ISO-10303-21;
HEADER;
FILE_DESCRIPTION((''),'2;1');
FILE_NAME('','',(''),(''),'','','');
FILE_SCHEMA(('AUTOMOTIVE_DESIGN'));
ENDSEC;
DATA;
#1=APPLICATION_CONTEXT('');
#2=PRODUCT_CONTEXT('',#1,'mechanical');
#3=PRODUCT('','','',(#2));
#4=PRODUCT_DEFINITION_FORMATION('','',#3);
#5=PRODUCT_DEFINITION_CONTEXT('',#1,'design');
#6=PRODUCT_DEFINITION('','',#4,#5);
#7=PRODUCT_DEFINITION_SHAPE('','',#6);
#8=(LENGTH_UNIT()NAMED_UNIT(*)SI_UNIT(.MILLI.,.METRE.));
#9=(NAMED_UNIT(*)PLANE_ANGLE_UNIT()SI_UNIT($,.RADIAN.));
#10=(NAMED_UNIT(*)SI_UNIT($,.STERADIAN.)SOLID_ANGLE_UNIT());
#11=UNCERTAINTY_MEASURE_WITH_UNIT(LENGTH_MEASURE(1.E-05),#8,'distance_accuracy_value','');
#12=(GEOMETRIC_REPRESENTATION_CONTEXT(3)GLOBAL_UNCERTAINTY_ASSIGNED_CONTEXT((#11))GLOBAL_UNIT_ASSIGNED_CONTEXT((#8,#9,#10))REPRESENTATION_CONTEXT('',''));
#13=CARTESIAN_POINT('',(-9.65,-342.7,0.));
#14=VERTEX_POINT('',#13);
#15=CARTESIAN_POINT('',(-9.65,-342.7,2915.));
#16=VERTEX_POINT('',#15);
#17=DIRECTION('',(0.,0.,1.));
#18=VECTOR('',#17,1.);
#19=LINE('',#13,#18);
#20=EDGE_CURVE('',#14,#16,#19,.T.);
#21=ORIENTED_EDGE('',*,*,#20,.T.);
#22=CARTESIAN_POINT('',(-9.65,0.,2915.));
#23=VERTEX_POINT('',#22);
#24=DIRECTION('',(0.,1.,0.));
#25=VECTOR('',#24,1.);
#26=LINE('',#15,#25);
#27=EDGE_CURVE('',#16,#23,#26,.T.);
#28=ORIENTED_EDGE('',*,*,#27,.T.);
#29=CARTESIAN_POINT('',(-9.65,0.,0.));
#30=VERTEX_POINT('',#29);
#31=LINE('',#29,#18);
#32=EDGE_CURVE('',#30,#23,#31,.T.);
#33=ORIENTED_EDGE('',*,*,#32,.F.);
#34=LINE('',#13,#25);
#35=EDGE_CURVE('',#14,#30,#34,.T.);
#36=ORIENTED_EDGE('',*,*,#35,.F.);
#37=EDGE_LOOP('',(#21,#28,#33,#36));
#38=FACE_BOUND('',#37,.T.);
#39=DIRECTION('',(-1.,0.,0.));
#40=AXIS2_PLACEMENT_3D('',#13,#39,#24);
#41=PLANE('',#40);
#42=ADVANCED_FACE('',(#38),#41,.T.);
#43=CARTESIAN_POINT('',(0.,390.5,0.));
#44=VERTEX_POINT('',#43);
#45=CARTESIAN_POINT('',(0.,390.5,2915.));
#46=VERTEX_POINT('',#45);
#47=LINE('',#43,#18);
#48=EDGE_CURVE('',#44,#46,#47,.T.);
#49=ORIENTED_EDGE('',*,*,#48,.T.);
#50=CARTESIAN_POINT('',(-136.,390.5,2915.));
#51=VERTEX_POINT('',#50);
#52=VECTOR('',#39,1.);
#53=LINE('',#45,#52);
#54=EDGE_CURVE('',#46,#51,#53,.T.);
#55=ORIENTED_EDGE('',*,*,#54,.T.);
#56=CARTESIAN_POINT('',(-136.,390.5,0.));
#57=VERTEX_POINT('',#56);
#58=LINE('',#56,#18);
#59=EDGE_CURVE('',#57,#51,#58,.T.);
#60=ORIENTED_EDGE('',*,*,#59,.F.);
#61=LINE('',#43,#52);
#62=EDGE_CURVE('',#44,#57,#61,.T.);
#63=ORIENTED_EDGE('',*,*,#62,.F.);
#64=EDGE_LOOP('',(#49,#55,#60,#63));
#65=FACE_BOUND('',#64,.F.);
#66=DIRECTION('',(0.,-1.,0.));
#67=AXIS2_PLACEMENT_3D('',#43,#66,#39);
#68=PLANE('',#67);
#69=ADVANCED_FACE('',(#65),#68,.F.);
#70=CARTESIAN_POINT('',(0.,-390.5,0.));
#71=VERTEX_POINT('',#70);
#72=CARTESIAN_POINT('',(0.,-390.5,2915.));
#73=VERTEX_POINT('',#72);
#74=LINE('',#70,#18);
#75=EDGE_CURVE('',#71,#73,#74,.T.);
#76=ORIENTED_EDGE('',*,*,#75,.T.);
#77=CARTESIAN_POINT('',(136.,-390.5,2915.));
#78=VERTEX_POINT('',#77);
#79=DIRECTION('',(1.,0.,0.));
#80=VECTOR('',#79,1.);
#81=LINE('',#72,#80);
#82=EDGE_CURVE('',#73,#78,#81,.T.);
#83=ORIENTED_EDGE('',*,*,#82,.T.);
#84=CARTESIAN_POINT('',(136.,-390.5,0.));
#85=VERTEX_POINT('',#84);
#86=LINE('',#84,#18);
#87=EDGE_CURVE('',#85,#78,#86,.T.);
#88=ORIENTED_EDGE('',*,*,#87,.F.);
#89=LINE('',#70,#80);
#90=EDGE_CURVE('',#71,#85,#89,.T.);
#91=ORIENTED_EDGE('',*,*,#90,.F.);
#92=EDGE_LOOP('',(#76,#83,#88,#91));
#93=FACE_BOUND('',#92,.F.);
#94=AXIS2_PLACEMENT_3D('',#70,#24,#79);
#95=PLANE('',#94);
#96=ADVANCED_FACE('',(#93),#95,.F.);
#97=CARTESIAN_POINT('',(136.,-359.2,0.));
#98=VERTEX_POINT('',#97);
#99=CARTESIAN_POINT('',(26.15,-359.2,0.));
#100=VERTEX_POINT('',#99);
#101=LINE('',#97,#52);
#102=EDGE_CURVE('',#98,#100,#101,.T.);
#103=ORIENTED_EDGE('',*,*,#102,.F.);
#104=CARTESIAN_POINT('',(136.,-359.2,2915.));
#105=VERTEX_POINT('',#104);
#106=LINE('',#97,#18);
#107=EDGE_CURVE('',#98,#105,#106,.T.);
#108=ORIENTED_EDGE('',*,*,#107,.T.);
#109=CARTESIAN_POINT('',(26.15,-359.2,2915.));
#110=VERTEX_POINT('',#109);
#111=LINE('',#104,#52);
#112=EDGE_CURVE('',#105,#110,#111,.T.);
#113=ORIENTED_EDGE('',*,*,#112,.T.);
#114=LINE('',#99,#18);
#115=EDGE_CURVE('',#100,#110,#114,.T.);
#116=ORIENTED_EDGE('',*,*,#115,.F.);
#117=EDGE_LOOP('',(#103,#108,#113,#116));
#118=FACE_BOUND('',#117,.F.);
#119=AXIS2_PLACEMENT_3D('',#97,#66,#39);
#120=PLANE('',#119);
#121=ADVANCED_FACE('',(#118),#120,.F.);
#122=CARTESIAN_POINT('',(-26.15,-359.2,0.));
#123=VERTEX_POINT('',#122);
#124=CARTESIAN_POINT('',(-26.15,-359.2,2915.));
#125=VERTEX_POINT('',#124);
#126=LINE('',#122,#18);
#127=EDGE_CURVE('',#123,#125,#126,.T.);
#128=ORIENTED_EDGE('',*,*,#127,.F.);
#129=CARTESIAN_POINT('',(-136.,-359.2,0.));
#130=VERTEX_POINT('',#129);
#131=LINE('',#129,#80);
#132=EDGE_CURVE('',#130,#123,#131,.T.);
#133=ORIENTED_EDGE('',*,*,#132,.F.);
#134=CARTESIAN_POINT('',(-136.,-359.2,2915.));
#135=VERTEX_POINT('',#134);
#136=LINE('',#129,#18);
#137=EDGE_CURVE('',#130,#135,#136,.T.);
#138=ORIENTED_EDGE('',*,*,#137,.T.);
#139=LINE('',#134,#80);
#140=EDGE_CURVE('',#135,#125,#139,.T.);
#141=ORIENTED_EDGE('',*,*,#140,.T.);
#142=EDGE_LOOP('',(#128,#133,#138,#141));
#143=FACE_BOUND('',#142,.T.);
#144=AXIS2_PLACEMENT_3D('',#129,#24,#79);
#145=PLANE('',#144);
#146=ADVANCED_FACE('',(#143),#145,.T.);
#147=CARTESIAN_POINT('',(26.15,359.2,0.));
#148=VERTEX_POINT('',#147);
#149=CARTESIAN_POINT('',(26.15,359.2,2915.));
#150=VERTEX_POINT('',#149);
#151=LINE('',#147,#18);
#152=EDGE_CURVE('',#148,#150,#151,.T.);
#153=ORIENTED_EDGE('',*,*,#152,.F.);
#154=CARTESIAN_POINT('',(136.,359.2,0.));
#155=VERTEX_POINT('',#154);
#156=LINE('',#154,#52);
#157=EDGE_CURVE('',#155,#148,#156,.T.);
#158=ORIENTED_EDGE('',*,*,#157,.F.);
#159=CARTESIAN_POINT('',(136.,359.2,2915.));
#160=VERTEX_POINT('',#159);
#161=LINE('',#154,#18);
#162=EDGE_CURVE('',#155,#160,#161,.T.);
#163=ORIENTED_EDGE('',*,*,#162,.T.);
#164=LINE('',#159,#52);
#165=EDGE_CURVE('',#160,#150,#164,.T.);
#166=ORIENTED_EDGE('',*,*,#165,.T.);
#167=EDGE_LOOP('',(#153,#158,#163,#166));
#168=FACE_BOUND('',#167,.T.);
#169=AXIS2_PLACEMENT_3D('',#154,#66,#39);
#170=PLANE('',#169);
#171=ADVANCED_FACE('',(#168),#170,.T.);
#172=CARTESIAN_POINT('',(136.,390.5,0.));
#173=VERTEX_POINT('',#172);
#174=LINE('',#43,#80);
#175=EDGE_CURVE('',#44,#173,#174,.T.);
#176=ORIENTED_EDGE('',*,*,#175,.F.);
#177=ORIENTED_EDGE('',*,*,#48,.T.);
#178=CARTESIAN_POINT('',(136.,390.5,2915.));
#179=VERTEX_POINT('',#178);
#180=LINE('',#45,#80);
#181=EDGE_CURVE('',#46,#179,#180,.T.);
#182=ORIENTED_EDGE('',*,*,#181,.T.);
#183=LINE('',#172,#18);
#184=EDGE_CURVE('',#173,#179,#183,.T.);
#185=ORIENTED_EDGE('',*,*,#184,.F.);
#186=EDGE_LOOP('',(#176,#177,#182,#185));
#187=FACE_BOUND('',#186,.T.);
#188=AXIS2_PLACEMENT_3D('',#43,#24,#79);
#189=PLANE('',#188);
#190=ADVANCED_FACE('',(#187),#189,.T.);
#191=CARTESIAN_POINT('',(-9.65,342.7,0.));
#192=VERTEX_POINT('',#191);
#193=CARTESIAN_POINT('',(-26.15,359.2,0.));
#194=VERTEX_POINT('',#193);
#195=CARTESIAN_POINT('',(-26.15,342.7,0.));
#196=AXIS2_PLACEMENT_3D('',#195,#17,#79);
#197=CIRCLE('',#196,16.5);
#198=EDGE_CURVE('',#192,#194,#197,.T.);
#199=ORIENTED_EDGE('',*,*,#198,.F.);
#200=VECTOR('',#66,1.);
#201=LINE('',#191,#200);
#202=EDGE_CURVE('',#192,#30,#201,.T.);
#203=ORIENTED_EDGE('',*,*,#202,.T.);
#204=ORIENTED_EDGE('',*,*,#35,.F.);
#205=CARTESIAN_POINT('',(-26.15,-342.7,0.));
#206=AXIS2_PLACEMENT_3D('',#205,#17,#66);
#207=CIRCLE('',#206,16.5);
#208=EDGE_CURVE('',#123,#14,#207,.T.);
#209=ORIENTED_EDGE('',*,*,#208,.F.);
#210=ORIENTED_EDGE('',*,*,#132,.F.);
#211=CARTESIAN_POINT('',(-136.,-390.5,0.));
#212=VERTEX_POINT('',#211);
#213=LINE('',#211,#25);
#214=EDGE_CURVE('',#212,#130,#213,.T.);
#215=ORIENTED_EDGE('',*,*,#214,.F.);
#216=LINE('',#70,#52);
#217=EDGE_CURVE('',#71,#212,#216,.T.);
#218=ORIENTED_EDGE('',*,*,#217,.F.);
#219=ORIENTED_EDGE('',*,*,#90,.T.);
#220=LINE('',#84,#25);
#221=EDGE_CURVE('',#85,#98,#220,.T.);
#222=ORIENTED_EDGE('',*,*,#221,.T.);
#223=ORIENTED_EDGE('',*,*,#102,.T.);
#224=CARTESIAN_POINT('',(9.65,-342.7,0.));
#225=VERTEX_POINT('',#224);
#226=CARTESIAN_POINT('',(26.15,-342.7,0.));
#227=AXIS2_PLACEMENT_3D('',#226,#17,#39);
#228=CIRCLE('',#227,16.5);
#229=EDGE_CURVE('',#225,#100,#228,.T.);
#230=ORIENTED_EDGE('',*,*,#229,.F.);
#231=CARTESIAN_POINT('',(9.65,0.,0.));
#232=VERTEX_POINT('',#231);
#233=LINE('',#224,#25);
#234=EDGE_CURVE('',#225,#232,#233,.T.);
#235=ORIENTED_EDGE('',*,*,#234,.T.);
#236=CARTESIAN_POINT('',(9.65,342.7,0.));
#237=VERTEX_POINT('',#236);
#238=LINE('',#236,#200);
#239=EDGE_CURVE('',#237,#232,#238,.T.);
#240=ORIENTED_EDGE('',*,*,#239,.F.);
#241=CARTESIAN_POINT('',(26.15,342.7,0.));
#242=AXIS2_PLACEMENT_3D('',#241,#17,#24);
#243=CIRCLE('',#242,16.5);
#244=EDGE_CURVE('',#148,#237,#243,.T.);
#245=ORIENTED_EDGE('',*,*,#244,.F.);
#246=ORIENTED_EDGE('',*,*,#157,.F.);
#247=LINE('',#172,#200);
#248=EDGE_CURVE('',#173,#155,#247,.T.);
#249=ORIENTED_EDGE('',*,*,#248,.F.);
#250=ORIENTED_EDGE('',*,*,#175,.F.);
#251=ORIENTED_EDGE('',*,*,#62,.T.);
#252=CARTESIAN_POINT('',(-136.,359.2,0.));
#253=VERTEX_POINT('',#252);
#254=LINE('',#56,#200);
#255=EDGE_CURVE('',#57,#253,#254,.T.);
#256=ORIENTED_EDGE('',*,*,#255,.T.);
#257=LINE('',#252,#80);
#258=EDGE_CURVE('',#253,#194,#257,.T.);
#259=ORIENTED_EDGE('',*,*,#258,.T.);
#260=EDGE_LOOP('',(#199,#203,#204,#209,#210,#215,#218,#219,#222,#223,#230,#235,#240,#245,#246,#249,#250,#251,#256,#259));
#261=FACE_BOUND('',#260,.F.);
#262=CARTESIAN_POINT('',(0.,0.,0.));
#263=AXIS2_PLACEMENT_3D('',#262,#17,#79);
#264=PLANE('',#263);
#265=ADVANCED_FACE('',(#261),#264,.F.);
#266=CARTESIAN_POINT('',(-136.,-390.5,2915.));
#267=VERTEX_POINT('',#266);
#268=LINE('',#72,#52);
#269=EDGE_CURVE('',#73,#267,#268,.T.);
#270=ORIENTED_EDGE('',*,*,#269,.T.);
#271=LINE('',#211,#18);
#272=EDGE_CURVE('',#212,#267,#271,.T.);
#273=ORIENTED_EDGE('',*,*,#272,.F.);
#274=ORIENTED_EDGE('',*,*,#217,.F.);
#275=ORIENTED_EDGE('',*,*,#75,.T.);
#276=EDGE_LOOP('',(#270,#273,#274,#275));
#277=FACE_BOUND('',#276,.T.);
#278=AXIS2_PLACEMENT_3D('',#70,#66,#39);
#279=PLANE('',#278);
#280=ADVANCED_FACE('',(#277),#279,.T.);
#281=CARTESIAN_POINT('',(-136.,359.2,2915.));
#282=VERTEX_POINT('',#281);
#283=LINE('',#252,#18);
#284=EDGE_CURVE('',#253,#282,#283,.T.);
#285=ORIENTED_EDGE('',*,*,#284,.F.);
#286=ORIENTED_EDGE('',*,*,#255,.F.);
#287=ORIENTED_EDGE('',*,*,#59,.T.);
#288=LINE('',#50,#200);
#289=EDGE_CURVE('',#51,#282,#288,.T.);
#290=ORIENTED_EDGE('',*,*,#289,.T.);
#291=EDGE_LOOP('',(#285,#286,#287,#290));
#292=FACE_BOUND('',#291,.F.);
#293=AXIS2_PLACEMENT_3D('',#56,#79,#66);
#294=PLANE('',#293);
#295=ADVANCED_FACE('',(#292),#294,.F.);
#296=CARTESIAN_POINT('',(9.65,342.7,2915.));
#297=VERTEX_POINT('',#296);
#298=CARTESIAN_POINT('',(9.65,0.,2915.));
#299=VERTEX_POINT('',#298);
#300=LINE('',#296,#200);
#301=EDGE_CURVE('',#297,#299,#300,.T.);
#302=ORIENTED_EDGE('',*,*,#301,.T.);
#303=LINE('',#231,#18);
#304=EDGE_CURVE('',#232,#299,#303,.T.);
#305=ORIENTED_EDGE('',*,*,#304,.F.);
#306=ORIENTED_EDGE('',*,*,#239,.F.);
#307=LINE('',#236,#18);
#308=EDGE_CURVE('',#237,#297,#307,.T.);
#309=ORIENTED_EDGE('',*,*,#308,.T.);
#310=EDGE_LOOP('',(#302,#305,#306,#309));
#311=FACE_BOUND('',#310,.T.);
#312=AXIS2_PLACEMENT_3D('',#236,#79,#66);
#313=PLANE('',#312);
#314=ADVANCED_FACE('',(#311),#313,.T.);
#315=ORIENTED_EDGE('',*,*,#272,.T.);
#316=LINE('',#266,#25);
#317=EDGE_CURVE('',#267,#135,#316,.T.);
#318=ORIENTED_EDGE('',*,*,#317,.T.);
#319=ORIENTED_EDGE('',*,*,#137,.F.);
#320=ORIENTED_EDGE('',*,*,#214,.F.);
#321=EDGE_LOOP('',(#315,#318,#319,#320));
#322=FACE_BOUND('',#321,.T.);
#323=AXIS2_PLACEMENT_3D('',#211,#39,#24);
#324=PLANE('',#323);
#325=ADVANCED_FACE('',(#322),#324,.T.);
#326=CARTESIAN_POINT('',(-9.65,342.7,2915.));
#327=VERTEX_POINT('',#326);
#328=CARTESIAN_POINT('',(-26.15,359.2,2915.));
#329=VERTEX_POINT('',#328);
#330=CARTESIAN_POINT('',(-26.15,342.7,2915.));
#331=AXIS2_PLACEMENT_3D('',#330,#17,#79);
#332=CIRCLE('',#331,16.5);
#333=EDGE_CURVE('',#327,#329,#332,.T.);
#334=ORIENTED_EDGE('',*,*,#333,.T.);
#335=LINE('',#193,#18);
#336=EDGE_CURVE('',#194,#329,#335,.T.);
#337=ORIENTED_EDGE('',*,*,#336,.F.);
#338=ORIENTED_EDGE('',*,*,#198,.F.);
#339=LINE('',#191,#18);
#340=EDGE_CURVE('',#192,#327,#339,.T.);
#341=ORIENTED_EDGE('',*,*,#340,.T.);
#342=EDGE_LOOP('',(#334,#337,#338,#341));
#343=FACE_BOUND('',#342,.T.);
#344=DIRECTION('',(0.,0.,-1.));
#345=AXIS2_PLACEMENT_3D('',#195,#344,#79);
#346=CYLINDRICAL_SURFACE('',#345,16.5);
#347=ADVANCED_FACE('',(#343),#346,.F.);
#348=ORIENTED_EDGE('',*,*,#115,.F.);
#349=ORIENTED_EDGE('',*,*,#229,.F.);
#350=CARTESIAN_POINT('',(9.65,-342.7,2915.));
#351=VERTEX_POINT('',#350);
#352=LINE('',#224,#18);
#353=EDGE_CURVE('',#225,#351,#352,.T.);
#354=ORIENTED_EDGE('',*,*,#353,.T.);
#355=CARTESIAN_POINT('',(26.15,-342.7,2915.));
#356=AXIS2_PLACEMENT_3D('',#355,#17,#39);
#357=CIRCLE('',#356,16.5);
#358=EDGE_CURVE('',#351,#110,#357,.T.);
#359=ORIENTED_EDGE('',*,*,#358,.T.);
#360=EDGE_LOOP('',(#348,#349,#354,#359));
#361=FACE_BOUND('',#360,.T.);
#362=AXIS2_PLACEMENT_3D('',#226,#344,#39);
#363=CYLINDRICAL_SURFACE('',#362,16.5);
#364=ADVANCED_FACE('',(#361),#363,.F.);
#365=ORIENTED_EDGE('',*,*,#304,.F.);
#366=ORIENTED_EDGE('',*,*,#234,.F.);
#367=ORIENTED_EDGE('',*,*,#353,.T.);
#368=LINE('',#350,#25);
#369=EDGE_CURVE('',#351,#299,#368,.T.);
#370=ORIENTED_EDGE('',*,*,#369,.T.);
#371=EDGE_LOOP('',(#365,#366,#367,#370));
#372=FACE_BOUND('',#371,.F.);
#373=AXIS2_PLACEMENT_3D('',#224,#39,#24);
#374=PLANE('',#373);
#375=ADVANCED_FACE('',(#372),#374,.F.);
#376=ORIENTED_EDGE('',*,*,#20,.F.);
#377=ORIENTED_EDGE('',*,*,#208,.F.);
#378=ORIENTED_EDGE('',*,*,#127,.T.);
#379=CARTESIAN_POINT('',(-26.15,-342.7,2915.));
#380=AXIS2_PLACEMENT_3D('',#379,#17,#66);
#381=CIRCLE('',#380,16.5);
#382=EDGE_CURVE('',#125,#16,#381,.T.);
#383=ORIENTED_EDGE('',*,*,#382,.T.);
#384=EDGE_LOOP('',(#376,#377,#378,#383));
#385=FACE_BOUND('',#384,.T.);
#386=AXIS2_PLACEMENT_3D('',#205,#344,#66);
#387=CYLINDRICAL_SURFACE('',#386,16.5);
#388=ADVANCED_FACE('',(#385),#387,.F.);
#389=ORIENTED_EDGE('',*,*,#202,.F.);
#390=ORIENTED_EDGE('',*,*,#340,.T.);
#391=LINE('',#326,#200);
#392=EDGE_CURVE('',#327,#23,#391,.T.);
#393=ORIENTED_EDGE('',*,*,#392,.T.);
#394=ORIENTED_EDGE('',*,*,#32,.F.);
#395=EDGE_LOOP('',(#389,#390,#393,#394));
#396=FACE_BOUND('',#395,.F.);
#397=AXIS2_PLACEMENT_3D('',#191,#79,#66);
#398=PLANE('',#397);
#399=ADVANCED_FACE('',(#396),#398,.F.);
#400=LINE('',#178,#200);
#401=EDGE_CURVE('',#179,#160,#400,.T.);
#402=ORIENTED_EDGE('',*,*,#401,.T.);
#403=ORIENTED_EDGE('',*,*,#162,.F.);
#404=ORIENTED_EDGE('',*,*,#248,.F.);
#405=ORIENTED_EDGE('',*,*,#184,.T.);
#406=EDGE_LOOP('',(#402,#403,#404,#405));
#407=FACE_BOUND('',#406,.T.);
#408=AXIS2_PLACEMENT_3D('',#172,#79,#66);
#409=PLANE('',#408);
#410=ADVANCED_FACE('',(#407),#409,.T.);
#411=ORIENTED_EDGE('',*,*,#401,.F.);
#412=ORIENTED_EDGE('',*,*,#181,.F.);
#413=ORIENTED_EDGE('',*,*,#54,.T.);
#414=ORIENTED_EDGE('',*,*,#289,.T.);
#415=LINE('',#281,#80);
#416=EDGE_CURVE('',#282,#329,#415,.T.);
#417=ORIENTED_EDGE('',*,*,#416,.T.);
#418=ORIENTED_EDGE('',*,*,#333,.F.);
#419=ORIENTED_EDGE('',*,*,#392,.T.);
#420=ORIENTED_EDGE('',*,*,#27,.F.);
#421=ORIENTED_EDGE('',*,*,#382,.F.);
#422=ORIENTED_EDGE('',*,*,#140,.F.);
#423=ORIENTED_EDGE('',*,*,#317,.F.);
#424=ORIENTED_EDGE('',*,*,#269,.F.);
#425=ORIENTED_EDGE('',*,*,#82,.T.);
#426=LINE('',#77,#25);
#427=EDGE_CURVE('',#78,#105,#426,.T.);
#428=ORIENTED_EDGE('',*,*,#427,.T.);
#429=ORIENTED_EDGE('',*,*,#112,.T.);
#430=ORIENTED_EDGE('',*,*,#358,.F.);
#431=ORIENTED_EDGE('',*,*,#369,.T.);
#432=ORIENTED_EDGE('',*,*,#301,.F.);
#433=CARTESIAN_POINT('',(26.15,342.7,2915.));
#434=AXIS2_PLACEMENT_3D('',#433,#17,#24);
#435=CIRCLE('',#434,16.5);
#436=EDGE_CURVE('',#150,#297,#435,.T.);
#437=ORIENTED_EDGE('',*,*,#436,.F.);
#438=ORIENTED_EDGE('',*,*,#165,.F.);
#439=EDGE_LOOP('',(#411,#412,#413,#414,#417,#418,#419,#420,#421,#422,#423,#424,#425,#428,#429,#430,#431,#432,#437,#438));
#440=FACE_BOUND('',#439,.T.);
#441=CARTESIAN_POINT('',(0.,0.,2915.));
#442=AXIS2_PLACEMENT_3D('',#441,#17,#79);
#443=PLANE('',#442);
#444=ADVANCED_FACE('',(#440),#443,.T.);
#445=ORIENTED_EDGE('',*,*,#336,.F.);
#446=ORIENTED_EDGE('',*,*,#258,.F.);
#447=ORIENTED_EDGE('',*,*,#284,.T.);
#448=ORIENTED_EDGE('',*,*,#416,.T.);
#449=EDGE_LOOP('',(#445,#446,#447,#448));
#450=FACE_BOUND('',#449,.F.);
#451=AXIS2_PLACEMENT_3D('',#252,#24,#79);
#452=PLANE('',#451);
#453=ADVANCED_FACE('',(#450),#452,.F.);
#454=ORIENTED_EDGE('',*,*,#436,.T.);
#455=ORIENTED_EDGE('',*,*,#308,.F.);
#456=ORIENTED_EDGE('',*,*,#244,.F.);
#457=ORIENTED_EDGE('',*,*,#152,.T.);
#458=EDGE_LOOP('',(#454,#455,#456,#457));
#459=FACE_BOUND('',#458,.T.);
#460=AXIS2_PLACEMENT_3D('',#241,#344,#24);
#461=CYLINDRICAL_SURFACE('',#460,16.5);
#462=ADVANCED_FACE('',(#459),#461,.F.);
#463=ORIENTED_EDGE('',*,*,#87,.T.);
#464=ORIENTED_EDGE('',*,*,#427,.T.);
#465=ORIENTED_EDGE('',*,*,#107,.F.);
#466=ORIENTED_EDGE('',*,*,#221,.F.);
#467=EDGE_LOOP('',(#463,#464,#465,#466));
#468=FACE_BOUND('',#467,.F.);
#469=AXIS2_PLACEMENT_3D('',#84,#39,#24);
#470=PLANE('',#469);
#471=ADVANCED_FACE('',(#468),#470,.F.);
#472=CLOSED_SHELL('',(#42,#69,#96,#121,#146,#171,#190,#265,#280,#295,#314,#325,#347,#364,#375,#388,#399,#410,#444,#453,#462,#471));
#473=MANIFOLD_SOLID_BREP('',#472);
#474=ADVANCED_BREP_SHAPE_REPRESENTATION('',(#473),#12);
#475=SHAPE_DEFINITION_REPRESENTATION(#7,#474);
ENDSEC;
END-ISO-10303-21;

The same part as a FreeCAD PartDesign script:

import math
import FreeCAD as App
import Part
import Sketcher

V = App.Vector

doc = App.newDocument("Part")
body = doc.addObject("PartDesign::Body", "Body")

# Sketch on XY plane
sketch1 = body.newObject("Sketcher::SketchObject", "Sketch")
sketch1.AttachmentSupport = (doc.getObject("XY_Plane"), [""])
sketch1.MapMode = "FlatFace"
sketch1.addGeometry(Part.LineSegment(V(-136, -359, 0), V(-136, -390, 0)), False)
sketch1.addGeometry(Part.LineSegment(V(-136, -390, 0), V(136, -390, 0)), False)
sketch1.addGeometry(Part.LineSegment(V(136, -390, 0), V(136, -359, 0)), False)
sketch1.addGeometry(Part.LineSegment(V(136, -359, 0), V(26, -359, 0)), False)
sketch1.addGeometry(Part.ArcOfCircle(Part.Circle(V(26, -343, 0), V(0, 0, 1), 16), math.radians(180), math.radians(270)), False)
sketch1.addGeometry(Part.LineSegment(V(10, -343, 0), V(10, 343, 0)), False)
sketch1.addGeometry(Part.ArcOfCircle(Part.Circle(V(26, 343, 0), V(0, 0, 1), 16), math.radians(90), math.radians(180)), False)
sketch1.addGeometry(Part.LineSegment(V(26, 359, 0), V(136, 359, 0)), False)
sketch1.addGeometry(Part.LineSegment(V(136, 359, 0), V(136, 390, 0)), False)
sketch1.addGeometry(Part.LineSegment(V(136, 390, 0), V(-136, 390, 0)), False)
sketch1.addGeometry(Part.LineSegment(V(-136, 390, 0), V(-136, 359, 0)), False)
sketch1.addGeometry(Part.LineSegment(V(-136, 359, 0), V(-26, 359, 0)), False)
sketch1.addGeometry(Part.ArcOfCircle(Part.Circle(V(-26, 343, 0), V(0, 0, 1), 16), math.radians(0), math.radians(90)), False)
sketch1.addGeometry(Part.LineSegment(V(-10, 343, 0), V(-10, -343, 0)), False)
sketch1.addGeometry(Part.ArcOfCircle(Part.Circle(V(-26, -343, 0), V(0, 0, 1), 16), math.radians(-90), math.radians(0)), False)
sketch1.addGeometry(Part.LineSegment(V(-26, -359, 0), V(-136, -359, 0)), False)
sketch1.addConstraint(Sketcher.Constraint("Coincident", 0, 2, 1, 1))
sketch1.addConstraint(Sketcher.Constraint("Coincident", 1, 2, 2, 1))
sketch1.addConstraint(Sketcher.Constraint("Coincident", 2, 2, 3, 1))
sketch1.addConstraint(Sketcher.Constraint("Tangent", 3, 2, 4, 2))
sketch1.addConstraint(Sketcher.Constraint("Tangent", 4, 1, 5, 1))
sketch1.addConstraint(Sketcher.Constraint("Tangent", 5, 2, 6, 2))
sketch1.addConstraint(Sketcher.Constraint("Tangent", 6, 1, 7, 1))
sketch1.addConstraint(Sketcher.Constraint("Coincident", 7, 2, 8, 1))
sketch1.addConstraint(Sketcher.Constraint("Coincident", 8, 2, 9, 1))
sketch1.addConstraint(Sketcher.Constraint("Coincident", 9, 2, 10, 1))
sketch1.addConstraint(Sketcher.Constraint("Coincident", 10, 2, 11, 1))
sketch1.addConstraint(Sketcher.Constraint("Tangent", 11, 2, 12, 2))
sketch1.addConstraint(Sketcher.Constraint("Tangent", 12, 1, 13, 1))
sketch1.addConstraint(Sketcher.Constraint("Tangent", 13, 2, 14, 2))
sketch1.addConstraint(Sketcher.Constraint("Tangent", 14, 1, 15, 1))
sketch1.addConstraint(Sketcher.Constraint("Coincident", 15, 2, 0, 1))
sketch1.addConstraint(Sketcher.Constraint("Vertical", 0))
sketch1.addConstraint(Sketcher.Constraint("Horizontal", 1))
sketch1.addConstraint(Sketcher.Constraint("Vertical", 2))
sketch1.addConstraint(Sketcher.Constraint("Horizontal", 3))
sketch1.addConstraint(Sketcher.Constraint("Vertical", 5))
sketch1.addConstraint(Sketcher.Constraint("Horizontal", 7))
sketch1.addConstraint(Sketcher.Constraint("Vertical", 8))
sketch1.addConstraint(Sketcher.Constraint("Horizontal", 9))
sketch1.addConstraint(Sketcher.Constraint("Vertical", 10))
sketch1.addConstraint(Sketcher.Constraint("Horizontal", 11))
sketch1.addConstraint(Sketcher.Constraint("Vertical", 13))
sketch1.addConstraint(Sketcher.Constraint("Horizontal", 15))
sketch1.addConstraint(Sketcher.Constraint("Equal", 4, 6))
sketch1.addConstraint(Sketcher.Constraint("Equal", 6, 12))
sketch1.addConstraint(Sketcher.Constraint("Equal", 12, 14))
sketch1.addConstraint(Sketcher.Constraint("Symmetric", 4, 3, 12, 3, -1, 1))
sketch1.addConstraint(Sketcher.Constraint("Symmetric", 0, 2, 8, 2, -1, 1))
sketch1.addConstraint(Sketcher.Constraint("Symmetric", 7, 2, 10, 2, -2))
sketch1.addConstraint(Sketcher.Constraint("Symmetric", 2, 2, 15, 2, -2))
sketch1.addConstraint(Sketcher.Constraint("Radius", 4, 16.5))
sketch1.addConstraint(Sketcher.Constraint("DistanceY", 0, 2, 0, 1, 31.3))
sketch1.addConstraint(Sketcher.Constraint("DistanceX", 0, 2, -1, 1, 136.0))
sketch1.addConstraint(Sketcher.Constraint("DistanceY", 0, 2, -1, 1, 390.5))
sketch1.addConstraint(Sketcher.Constraint("DistanceX", -1, 1, 4, 1, 9.65))
pad1 = body.newObject("PartDesign::Pad", "Pad")
pad1.Profile = sketch1
pad1.Length = 2915

doc.recompute()
